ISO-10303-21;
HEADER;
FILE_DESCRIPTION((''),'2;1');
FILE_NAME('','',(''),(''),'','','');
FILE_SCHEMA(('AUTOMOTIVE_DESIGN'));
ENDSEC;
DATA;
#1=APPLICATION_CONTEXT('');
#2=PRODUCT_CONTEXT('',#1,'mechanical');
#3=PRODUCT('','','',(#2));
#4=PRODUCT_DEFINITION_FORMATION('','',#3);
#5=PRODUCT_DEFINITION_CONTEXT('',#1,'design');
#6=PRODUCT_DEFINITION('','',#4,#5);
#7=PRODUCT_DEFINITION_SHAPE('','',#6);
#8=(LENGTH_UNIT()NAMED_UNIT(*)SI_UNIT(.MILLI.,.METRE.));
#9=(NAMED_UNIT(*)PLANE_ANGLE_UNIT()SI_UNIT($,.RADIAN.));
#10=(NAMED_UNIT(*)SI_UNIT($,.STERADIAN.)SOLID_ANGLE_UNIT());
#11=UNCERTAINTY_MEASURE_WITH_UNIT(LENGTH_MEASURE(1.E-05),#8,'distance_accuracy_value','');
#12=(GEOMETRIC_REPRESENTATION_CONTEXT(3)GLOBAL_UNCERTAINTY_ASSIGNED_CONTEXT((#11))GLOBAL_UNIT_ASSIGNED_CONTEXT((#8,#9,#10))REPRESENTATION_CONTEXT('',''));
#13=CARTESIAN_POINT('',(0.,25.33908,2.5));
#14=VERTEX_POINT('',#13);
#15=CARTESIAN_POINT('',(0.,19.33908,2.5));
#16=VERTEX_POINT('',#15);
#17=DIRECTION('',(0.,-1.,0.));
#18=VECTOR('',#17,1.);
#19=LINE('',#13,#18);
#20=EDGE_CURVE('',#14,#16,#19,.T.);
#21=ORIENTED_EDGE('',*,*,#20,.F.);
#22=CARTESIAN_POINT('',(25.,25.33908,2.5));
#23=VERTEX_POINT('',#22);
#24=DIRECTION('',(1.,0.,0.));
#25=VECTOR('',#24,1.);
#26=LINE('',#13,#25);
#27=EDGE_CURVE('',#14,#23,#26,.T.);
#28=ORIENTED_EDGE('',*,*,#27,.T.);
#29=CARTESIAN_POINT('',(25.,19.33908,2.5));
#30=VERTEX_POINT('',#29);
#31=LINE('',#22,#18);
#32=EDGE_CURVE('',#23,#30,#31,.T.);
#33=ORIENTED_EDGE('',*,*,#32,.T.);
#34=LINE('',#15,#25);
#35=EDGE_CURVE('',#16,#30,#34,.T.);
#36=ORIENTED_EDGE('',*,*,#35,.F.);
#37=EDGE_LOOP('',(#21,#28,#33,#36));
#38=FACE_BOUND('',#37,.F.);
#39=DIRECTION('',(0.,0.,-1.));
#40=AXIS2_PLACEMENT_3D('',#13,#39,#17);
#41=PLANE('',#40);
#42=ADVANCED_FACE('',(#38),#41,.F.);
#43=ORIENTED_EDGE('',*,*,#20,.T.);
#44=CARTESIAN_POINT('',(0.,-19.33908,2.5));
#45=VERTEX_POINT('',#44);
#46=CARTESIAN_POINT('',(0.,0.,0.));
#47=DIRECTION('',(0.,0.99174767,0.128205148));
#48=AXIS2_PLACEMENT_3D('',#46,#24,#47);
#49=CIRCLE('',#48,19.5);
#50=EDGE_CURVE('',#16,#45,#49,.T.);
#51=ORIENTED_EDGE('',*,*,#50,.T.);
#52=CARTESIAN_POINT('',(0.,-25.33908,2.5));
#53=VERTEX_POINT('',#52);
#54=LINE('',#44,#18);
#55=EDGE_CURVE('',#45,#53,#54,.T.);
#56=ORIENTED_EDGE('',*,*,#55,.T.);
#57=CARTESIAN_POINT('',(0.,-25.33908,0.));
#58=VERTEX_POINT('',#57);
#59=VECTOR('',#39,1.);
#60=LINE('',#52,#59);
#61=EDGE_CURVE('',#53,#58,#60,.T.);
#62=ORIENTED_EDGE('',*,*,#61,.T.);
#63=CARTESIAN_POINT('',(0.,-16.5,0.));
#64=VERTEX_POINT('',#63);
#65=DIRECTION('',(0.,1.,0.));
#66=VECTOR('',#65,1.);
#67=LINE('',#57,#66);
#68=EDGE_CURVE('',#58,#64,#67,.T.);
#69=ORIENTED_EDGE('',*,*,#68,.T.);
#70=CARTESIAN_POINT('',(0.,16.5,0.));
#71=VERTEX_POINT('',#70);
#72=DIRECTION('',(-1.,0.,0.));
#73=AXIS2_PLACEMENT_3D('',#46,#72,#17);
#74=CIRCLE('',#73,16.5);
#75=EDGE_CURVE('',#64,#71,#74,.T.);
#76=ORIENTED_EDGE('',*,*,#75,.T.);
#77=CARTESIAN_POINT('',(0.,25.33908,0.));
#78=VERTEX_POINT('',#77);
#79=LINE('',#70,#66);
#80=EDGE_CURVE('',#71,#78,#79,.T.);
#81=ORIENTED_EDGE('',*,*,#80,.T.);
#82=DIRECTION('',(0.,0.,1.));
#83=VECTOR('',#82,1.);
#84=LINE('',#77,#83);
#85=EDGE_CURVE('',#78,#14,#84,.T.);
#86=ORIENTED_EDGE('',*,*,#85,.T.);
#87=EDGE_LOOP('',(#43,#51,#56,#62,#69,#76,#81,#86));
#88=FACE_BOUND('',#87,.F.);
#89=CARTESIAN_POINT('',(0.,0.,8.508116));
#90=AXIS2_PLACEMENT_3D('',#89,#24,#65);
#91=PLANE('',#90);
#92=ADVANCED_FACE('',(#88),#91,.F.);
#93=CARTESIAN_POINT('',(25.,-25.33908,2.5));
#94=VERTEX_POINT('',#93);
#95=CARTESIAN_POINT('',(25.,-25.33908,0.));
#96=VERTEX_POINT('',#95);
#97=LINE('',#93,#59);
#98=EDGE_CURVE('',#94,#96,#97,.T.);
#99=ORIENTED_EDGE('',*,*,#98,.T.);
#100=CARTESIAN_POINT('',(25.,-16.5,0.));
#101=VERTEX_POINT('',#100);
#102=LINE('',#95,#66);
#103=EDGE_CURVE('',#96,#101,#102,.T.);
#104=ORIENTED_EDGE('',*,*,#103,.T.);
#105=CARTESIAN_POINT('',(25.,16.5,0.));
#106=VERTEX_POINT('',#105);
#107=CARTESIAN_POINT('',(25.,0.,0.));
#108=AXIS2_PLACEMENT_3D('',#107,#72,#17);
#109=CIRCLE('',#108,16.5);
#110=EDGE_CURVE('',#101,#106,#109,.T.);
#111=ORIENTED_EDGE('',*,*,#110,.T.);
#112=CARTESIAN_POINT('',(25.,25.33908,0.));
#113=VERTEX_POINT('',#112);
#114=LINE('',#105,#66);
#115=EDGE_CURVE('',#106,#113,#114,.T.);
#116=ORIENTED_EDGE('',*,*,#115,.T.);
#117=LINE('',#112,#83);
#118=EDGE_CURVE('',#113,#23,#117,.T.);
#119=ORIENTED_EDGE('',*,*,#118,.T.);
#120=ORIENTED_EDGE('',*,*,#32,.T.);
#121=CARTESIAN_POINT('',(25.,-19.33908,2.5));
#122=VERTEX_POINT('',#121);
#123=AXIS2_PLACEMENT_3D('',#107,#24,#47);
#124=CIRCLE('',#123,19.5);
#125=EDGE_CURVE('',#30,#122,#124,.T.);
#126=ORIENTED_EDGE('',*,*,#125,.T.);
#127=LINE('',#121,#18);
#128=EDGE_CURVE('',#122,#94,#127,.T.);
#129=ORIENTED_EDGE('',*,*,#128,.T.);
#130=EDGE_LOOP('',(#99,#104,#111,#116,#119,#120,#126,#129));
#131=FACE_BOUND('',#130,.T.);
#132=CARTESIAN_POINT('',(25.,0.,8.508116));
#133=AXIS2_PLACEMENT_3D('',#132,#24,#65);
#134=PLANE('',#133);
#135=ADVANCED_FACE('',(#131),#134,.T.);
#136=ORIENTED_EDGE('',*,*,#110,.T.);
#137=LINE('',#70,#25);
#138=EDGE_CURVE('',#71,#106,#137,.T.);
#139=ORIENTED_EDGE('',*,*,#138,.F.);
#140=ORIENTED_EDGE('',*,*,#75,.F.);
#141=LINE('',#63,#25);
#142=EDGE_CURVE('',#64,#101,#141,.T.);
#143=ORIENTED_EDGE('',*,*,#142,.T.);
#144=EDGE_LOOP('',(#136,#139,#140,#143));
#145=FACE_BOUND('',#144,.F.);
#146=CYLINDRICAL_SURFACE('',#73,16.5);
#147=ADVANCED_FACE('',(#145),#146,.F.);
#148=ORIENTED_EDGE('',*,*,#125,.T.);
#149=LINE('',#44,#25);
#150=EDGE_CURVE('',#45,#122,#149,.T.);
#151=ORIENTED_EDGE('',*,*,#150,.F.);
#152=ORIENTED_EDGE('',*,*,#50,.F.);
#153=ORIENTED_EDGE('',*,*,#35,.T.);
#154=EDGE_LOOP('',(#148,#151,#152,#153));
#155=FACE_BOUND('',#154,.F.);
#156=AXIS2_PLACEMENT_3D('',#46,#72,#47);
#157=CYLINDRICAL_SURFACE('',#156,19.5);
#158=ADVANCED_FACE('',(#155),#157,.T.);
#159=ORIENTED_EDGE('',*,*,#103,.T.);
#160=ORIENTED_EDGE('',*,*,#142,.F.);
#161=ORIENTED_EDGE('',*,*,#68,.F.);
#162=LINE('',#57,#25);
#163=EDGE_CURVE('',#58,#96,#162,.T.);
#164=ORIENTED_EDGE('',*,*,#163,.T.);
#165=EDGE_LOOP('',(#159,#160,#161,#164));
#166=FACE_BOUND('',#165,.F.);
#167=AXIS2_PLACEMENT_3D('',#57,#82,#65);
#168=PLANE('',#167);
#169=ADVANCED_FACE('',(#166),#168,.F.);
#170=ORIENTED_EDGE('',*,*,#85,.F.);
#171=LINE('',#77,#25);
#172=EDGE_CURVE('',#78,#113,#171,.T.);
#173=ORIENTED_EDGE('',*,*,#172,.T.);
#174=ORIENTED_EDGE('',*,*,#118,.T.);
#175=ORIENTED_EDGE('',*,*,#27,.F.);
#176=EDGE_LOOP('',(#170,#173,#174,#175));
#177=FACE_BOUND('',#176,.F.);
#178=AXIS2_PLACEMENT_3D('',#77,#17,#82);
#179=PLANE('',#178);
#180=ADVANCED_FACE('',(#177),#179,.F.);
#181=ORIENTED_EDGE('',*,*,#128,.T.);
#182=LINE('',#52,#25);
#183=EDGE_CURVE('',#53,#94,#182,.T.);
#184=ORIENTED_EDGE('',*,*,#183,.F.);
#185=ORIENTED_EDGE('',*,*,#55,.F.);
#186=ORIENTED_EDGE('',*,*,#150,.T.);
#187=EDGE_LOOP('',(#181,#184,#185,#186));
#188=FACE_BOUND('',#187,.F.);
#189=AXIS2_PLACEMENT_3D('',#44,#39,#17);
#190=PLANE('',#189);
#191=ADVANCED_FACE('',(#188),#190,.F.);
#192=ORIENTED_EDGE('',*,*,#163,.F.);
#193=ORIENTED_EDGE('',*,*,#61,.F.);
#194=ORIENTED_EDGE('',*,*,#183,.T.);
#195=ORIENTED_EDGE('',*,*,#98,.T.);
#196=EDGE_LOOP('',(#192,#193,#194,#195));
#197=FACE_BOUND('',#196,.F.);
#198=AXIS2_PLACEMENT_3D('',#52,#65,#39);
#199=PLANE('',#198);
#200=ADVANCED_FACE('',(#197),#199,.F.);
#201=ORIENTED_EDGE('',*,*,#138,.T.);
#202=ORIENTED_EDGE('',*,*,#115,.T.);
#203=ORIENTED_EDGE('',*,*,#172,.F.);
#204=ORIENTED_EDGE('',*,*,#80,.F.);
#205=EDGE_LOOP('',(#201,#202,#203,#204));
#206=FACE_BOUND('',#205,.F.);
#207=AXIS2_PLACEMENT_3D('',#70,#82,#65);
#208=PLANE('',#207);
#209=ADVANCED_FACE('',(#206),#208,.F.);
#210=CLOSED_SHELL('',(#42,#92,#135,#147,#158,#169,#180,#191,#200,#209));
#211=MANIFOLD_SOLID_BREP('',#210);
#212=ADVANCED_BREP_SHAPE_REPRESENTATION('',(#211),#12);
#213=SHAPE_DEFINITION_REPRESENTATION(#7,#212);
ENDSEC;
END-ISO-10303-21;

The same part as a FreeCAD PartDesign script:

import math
import FreeCAD as App
import Part
import Sketcher
from FreeCAD import Vector

doc = App.newDocument("Part")
body = doc.addObject("PartDesign::Body", "Body")

sketch1 = body.newObject("Sketcher::SketchObject", "Sketch")
sketch1.AttachmentSupport = (doc.getObject("YZ_Plane"), [""])
sketch1.MapMode = "FlatFace"
sketch1.addGeometry(Part.LineSegment(Vector(-19.3, 2.5, 0), Vector(-25.3, 2.5, 0)), False)
sketch1.addGeometry(Part.LineSegment(Vector(-25.3, 2.5, 0), Vector(-25.3, 0, 0)), False)
sketch1.addGeometry(Part.LineSegment(Vector(-25.3, 0, 0), Vector(-16.5, 0, 0)), False)
sketch1.addGeometry(Part.ArcOfCircle(Part.Circle(Vector(0, 0, 0), Vector(0, 0, 1), 16.5), math.radians(0), math.radians(180)), False)
sketch1.addGeometry(Part.LineSegment(Vector(16.5, 0, 0), Vector(25.3, 0, 0)), False)
sketch1.addGeometry(Part.LineSegment(Vector(25.3, 0, 0), Vector(25.3, 2.5, 0)), False)
sketch1.addGeometry(Part.LineSegment(Vector(25.3, 2.5, 0), Vector(19.3, 2.5, 0)), False)
sketch1.addGeometry(Part.ArcOfCircle(Part.Circle(Vector(0, 0, 0), Vector(0, 0, 1), 19.5), math.radians(7), math.radians(173)), False)
sketch1.addConstraint(Sketcher.Constraint("Coincident", 0, 2, 1, 1))
sketch1.addConstraint(Sketcher.Constraint("Coincident", 1, 2, 2, 1))
sketch1.addConstraint(Sketcher.Constraint("Coincident", 2, 2, 3, 2))
sketch1.addConstraint(Sketcher.Constraint("Coincident", 3, 1, 4, 1))
sketch1.addConstraint(Sketcher.Constraint("Coincident", 4, 2, 5, 1))
sketch1.addConstraint(Sketcher.Constraint("Coincident", 5, 2, 6, 1))
sketch1.addConstraint(Sketcher.Constraint("Coincident", 6, 2, 7, 1))
sketch1.addConstraint(Sketcher.Constraint("Coincident", 7, 2, 0, 1))
sketch1.addConstraint(Sketcher.Constraint("Horizontal", 0))
sketch1.addConstraint(Sketcher.Constraint("Vertical", 1))
sketch1.addConstraint(Sketcher.Constraint("Horizontal", 2))
sketch1.addConstraint(Sketcher.Constraint("Horizontal", 4))
sketch1.addConstraint(Sketcher.Constraint("Vertical", 5))
sketch1.addConstraint(Sketcher.Constraint("Horizontal", 6))
sketch1.addConstraint(Sketcher.Constraint("Coincident", 3, 3, -1, 1))
sketch1.addConstraint(Sketcher.Constraint("Coincident", 7, 3, -1, 1))
sketch1.addConstraint(Sketcher.Constraint("Symmetric", 1, 2, 4, 2, -1, 1))
sketch1.addConstraint(Sketcher.Constraint("PointOnObject", 1, 2, -1))
sketch1.addConstraint(Sketcher.Constraint("Horizontal", 0, 2, 5, 2))
sketch1.addConstraint(Sketcher.Constraint("Radius", 3, 16.5))
sketch1.addConstraint(Sketcher.Constraint("Radius", 7, 19.5))
sketch1.addConstraint(Sketcher.Constraint("DistanceX", 0, 2, 0, 1, 6.0))
sketch1.addConstraint(Sketcher.Constraint("DistanceY", 1, 2, 1, 1, 2.5))
pad1 = body.newObject("PartDesign::Pad", "Pad")
pad1.Profile = sketch1
pad1.Length = 25

doc.recompute()
